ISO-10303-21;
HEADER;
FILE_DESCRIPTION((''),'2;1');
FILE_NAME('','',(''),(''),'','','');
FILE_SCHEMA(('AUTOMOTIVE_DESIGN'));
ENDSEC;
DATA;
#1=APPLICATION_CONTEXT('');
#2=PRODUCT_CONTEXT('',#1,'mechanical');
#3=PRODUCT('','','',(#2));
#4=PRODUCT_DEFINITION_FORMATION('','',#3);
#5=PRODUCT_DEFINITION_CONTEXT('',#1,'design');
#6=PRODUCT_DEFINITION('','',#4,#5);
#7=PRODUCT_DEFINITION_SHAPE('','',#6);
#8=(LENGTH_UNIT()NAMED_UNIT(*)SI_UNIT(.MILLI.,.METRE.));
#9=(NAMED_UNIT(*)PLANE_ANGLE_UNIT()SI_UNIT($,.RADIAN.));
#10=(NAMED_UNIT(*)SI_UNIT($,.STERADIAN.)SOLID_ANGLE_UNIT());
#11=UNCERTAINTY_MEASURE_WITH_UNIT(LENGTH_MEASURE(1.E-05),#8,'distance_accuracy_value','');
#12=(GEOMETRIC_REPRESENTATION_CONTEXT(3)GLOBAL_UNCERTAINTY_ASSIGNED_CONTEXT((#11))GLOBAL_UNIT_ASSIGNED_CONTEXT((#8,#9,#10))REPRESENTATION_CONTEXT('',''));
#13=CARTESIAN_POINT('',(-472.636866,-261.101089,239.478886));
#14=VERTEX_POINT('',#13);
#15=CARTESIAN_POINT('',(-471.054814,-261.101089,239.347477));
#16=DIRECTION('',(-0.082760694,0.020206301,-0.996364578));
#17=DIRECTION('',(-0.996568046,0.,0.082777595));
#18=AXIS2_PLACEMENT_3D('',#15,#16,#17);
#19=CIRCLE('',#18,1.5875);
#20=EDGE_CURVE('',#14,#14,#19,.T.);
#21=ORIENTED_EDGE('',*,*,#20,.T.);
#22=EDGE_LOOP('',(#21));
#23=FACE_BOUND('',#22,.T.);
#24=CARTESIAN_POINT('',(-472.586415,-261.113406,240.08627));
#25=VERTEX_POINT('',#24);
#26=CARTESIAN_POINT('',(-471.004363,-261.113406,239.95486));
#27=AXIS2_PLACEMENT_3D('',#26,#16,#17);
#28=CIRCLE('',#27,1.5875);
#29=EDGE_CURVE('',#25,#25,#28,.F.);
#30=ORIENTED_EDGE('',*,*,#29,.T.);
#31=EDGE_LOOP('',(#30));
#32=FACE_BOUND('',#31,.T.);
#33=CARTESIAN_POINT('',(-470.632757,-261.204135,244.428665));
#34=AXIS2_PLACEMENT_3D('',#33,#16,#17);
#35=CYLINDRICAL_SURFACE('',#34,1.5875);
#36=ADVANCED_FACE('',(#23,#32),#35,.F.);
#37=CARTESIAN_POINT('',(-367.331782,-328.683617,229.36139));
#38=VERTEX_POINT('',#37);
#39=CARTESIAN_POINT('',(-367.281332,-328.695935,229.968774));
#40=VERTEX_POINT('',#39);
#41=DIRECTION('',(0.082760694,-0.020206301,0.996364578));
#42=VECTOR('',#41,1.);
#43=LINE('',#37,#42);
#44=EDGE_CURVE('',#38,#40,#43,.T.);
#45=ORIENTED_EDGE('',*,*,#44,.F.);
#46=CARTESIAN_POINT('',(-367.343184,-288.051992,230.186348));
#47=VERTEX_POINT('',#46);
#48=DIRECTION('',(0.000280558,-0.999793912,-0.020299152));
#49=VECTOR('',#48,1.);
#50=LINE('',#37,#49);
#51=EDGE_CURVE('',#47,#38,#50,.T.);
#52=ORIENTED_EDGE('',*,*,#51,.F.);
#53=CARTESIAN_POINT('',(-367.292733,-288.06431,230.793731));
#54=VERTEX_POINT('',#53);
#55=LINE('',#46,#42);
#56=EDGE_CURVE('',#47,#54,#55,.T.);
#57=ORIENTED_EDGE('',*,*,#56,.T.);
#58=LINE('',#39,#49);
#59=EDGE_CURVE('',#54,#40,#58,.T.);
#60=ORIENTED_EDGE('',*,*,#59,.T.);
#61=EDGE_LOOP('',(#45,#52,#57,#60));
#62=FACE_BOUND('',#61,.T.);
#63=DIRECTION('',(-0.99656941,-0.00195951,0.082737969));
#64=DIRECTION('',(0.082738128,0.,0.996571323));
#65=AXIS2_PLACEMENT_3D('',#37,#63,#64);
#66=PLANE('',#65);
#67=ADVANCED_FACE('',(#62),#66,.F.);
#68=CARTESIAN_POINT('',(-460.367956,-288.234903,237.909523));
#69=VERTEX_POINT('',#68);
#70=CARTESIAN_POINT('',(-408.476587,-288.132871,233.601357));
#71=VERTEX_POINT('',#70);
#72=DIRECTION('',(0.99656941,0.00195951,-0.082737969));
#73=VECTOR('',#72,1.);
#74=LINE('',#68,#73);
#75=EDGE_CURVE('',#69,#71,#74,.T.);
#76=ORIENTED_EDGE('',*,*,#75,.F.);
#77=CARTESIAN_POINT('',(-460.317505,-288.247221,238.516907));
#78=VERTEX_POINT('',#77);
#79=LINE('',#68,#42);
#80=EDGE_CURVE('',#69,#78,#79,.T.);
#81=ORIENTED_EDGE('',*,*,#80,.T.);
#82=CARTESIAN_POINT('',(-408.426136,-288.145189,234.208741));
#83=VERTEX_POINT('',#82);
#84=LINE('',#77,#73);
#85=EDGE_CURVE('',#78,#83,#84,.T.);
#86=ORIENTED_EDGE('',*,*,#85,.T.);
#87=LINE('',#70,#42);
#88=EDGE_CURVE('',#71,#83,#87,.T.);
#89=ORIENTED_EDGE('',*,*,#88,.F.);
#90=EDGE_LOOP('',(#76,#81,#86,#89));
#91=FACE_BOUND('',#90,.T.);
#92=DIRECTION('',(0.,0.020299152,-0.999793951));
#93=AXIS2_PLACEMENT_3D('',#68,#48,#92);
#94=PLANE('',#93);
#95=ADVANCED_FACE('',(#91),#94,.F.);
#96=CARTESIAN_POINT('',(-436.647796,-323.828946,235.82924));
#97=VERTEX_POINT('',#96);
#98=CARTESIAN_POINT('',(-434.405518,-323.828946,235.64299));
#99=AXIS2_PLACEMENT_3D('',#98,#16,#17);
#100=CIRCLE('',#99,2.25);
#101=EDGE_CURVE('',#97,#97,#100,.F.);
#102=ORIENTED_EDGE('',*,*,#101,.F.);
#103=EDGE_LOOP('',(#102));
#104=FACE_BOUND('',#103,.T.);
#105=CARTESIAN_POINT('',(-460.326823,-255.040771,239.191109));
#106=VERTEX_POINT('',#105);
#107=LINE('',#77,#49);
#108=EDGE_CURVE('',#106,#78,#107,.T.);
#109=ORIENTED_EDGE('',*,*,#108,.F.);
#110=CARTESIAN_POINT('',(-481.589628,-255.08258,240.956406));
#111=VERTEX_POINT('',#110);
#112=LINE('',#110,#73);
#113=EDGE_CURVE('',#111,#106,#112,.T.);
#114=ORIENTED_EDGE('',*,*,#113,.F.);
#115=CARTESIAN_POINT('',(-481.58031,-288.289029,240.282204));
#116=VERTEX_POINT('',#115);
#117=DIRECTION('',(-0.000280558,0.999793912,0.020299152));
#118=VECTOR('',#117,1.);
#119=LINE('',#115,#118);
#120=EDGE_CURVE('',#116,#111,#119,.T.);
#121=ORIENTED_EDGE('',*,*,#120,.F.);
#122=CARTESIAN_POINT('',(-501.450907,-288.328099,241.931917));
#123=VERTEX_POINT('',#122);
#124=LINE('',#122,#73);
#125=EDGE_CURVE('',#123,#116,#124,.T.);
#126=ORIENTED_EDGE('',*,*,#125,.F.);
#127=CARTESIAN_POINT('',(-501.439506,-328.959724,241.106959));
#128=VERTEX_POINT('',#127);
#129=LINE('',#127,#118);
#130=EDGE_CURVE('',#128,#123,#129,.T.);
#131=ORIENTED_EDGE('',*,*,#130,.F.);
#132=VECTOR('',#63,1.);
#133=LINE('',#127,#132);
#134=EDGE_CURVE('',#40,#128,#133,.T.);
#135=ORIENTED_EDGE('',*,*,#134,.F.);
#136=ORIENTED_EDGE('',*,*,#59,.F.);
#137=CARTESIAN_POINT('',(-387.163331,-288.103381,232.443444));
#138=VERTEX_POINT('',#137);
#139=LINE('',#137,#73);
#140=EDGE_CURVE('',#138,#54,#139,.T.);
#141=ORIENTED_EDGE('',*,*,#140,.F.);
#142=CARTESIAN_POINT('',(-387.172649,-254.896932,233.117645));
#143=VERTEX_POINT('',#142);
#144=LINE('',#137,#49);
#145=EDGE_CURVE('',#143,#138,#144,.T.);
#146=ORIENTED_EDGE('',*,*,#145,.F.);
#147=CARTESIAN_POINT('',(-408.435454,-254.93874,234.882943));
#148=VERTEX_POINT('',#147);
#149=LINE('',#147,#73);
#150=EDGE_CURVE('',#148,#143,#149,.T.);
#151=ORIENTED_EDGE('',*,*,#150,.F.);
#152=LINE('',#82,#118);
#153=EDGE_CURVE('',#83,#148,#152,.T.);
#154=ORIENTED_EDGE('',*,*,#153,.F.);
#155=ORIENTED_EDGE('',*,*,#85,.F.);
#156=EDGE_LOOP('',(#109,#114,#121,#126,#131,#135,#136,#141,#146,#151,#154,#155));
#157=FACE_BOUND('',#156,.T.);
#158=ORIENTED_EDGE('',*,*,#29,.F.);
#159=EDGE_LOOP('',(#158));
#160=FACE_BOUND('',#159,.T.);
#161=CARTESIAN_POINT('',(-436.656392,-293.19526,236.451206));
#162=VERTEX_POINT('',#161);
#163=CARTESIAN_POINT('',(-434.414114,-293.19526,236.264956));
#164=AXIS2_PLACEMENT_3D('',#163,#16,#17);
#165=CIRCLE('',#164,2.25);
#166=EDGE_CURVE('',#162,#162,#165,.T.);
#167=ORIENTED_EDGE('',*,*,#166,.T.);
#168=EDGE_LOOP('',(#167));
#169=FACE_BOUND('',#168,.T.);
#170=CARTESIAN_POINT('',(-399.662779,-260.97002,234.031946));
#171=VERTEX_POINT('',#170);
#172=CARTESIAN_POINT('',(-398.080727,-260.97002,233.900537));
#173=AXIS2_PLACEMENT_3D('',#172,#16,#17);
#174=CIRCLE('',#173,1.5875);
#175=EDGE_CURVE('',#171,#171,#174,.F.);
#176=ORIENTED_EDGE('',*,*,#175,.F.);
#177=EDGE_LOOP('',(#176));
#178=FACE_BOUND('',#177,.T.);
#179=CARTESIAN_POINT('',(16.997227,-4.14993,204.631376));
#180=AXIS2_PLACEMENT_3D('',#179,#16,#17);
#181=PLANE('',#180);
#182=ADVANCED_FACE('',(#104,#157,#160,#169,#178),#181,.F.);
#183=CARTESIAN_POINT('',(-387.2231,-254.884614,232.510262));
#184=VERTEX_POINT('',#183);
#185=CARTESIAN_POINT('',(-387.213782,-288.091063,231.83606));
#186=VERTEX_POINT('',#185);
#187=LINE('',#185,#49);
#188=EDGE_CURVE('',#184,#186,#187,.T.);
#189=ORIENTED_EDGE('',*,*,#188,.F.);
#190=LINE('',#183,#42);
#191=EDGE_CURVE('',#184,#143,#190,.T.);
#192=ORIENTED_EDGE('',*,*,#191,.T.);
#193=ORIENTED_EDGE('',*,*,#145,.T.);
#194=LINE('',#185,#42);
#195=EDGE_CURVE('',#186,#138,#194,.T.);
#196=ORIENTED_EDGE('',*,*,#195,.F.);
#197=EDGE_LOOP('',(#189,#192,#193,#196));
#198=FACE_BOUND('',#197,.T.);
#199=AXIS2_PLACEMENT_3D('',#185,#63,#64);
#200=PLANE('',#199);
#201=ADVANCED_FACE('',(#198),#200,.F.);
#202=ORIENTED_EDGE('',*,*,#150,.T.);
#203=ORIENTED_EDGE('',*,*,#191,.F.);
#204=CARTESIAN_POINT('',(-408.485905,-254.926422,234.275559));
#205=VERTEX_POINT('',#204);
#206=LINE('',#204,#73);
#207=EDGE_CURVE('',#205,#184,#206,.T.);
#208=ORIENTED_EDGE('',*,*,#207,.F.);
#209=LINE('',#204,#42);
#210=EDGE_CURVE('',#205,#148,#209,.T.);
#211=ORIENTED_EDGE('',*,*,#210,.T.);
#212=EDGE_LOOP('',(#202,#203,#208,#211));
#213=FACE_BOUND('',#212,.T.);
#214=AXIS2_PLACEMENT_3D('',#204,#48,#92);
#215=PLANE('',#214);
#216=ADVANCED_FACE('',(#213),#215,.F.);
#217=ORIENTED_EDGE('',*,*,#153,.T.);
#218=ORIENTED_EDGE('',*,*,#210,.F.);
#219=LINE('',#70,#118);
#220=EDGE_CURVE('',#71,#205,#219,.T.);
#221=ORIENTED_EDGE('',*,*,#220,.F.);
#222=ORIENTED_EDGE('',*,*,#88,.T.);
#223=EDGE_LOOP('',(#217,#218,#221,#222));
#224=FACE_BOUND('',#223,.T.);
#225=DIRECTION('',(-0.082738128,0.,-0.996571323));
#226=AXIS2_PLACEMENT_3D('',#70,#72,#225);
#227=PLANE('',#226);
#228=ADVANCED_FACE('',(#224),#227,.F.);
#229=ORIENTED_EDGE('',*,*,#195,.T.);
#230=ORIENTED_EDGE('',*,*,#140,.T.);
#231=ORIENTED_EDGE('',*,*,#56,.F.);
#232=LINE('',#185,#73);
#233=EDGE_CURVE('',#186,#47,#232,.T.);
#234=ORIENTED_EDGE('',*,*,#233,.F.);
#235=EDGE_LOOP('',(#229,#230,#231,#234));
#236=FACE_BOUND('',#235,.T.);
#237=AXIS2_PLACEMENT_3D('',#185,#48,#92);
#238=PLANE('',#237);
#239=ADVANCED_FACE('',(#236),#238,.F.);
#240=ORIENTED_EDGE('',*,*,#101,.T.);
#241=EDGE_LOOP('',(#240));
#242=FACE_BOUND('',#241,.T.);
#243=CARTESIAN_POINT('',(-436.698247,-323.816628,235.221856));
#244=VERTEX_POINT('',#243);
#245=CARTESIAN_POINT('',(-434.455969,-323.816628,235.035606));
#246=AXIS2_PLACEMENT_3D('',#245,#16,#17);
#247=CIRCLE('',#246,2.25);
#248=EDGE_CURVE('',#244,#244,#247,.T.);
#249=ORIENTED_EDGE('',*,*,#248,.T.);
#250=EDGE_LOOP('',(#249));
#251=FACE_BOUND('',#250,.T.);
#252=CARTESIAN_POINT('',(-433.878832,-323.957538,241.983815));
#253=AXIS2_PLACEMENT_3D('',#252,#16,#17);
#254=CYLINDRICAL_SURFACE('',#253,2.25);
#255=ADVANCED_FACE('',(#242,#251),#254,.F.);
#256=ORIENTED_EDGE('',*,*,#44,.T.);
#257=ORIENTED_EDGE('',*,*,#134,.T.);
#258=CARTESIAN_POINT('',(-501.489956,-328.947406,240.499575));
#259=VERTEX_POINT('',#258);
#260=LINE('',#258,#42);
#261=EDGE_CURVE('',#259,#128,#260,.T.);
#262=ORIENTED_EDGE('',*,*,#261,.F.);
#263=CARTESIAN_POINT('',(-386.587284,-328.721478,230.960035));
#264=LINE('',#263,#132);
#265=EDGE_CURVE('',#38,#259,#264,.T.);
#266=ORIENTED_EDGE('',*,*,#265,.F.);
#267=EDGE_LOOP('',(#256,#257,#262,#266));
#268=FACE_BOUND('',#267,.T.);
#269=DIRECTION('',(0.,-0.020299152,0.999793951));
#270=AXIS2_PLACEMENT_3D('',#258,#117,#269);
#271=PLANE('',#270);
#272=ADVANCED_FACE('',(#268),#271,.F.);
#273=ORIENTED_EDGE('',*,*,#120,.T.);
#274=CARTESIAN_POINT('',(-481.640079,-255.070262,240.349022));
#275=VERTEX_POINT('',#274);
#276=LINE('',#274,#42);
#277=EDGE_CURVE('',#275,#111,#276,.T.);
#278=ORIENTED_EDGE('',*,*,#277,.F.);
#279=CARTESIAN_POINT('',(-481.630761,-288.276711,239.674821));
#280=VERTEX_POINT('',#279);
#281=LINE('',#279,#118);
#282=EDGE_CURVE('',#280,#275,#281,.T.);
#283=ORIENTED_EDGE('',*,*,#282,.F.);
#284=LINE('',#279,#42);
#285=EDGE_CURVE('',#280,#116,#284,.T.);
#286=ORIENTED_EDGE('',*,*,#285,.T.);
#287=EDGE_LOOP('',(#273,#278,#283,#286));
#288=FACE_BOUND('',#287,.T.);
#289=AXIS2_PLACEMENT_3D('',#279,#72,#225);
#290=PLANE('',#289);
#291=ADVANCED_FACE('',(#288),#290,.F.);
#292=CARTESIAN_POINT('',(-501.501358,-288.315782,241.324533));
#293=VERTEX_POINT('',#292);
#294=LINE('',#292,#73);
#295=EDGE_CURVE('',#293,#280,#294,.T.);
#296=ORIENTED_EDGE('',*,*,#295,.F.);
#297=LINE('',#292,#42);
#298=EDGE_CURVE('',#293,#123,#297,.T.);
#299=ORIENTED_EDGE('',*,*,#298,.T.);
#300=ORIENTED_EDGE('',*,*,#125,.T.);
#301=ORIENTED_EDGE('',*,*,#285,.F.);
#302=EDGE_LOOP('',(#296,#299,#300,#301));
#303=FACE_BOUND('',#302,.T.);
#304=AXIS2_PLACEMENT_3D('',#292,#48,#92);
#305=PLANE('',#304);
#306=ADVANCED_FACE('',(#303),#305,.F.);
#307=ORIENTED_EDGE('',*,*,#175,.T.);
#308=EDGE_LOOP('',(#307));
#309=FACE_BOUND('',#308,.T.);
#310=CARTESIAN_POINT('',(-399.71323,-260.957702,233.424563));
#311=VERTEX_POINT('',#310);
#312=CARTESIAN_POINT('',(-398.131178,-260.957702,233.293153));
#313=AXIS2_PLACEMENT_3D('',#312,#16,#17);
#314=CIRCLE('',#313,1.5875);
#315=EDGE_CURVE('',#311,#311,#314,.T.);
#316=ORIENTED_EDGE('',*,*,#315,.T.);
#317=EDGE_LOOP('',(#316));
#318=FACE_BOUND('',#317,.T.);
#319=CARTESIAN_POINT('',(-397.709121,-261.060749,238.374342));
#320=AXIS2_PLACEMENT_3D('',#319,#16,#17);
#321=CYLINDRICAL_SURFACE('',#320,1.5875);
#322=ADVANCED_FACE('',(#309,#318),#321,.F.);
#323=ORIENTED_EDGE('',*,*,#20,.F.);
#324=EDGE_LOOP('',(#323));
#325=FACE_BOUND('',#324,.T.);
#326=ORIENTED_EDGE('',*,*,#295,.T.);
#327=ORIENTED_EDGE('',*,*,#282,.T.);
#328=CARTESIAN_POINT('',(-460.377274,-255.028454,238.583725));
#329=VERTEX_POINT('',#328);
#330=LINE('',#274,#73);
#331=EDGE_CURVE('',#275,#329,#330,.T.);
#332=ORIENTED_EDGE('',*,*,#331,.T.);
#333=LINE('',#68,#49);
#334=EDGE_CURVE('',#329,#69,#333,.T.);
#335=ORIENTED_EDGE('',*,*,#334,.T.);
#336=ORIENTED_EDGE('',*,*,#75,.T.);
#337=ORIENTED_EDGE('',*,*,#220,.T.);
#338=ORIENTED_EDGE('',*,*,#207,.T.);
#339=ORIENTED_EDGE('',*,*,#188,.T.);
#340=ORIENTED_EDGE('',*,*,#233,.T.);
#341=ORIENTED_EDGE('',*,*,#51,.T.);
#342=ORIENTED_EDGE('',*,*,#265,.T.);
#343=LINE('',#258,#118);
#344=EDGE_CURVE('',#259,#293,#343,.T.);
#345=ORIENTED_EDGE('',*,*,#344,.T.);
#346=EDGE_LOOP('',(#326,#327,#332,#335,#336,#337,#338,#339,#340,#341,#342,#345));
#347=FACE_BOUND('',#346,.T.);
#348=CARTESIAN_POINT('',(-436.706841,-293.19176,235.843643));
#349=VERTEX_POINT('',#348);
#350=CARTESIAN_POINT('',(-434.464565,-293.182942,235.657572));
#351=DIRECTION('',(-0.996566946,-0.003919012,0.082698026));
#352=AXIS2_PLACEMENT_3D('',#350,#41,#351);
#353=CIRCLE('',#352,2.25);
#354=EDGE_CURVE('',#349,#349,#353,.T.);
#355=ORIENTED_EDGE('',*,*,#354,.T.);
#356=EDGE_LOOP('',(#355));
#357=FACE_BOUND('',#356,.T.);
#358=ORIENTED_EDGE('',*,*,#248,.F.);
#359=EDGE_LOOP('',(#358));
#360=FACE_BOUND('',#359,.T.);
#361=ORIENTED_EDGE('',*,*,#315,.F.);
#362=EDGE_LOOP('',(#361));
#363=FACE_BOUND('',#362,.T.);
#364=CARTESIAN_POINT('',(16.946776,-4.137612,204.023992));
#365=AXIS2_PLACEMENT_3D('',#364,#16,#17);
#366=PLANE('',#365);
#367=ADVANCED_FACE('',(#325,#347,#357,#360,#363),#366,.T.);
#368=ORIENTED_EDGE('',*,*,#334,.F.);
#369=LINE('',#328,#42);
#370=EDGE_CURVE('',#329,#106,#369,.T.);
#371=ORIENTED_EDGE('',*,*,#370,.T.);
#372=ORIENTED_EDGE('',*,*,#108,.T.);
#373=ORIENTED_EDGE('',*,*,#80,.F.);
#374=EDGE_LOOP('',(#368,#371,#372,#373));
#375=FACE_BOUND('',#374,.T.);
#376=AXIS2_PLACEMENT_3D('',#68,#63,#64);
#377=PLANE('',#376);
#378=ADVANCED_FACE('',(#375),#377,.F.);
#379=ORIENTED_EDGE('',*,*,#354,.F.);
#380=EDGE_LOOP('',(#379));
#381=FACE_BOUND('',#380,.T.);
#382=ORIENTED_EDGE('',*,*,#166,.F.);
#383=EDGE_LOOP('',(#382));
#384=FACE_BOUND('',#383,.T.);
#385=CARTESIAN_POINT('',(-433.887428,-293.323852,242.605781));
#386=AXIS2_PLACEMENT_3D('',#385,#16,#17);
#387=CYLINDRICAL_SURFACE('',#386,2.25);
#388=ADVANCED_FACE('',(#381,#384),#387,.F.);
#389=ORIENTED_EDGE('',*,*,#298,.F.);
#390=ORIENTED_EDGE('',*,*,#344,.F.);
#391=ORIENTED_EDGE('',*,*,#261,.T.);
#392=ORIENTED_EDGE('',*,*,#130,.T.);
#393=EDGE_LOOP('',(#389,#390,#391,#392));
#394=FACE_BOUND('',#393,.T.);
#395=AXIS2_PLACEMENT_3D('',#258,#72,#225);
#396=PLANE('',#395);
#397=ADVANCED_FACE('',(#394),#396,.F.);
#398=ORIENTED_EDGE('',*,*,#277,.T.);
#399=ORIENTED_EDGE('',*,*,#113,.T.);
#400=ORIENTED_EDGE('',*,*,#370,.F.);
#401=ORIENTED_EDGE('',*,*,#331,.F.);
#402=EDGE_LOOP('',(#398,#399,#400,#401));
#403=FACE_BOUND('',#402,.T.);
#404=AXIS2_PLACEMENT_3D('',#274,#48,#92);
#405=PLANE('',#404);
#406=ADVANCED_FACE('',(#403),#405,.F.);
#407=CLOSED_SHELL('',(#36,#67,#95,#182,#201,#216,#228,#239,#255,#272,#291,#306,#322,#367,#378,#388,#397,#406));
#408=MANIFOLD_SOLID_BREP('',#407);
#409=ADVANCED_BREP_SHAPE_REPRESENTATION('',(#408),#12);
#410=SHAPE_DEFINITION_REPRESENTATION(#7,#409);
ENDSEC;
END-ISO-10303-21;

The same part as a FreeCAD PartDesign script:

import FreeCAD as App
import Part
import Sketcher
Q = App.Units.Quantity


def add_polygon(sketch, points):
    """Adds a closed chain of lines whose ends are joined by coincident constraints."""
    first, n = sketch.GeometryCount, len(points)
    for a, b in zip(points, points[1:] + points[:1]):
        sketch.addGeometry(Part.LineSegment(App.Vector(*a, 0), App.Vector(*b, 0)), False)
    for i in range(n):
        sketch.addConstraint(Sketcher.Constraint("Coincident", first + i, 2, first + (i + 1) % n, 1))

doc = App.newDocument("Part")
body = doc.addObject("PartDesign::Body", "Body")

sketch1 = body.newObject("Sketcher::SketchObject", "Sketch")
sketch1.Placement = App.Placement(App.Vector(16.997227, -4.14993, 204.631376), App.Rotation(App.Vector(0.99656941, 0.00195951, -0.082737969), App.Vector(0.000280558, -0.999793911, -0.020299152), App.Vector(-0.082760694, 0.020206301, -0.996364578), "ZXY"))
add_polygon(sketch1, [(-406, 283), (-386, 283), (-386, 324), (-520, 324), (-520, 283), (-500, 283), (-500, 250), (-479, 250), (-479, 283), (-427, 283), (-427, 250), (-406, 250)])
sketch1.addConstraint(Sketcher.Constraint("Horizontal", 0))
sketch1.addConstraint(Sketcher.Constraint("Vertical", 1))
sketch1.addConstraint(Sketcher.Constraint("Horizontal", 2))
sketch1.addConstraint(Sketcher.Constraint("Vertical", 3))
sketch1.addConstraint(Sketcher.Constraint("Horizontal", 4))
sketch1.addConstraint(Sketcher.Constraint("Vertical", 5))
sketch1.addConstraint(Sketcher.Constraint("Horizontal", 6))
sketch1.addConstraint(Sketcher.Constraint("Vertical", 7))
sketch1.addConstraint(Sketcher.Constraint("Horizontal", 8))
sketch1.addConstraint(Sketcher.Constraint("Vertical", 9))
sketch1.addConstraint(Sketcher.Constraint("Horizontal", 10))
sketch1.addConstraint(Sketcher.Constraint("Vertical", 11))
sketch1.addConstraint(Sketcher.Constraint("Horizontal", 0, 2, 3, 2))
sketch1.addConstraint(Sketcher.Constraint("Horizontal", 4, 2, 7, 2))
sketch1.addConstraint(Sketcher.Constraint("Horizontal", 6, 2, 9, 2))
sketch1.addConstraint(Sketcher.Constraint("Equal", 0, 4))
sketch1.addConstraint(Sketcher.Constraint("Equal", 6, 10))
sketch1.addConstraint(Sketcher.Constraint("DistanceX", 2, 2, 2, 1, Q("5.3 in")))
sketch1.addConstraint(Sketcher.Constraint("DistanceY", 1, 1, 1, 2, Q("1.6 in")))
sketch1.addConstraint(Sketcher.Constraint("DistanceX", 6, 1, 6, 2, Q("0.84 in")))
sketch1.addConstraint(Sketcher.Constraint("DistanceX", 8, 1, 8, 2, Q("2.05 in")))
sketch1.addConstraint(Sketcher.Constraint("DistanceY", 5, 2, 5, 1, Q("33.213294 mm")))
sketch1.addConstraint(Sketcher.Constraint("DistanceY", -1, 1, 0, 2, Q("283.21698 mm")))
sketch1.addConstraint(Sketcher.Constraint("DistanceX", 0, 2, -1, 1, Q("385.692572 mm")))
pad1 = body.newObject("PartDesign::Pad", "Pad")
pad1.Profile = sketch1
pad1.Length = Q("0.024 in")

sketch2 = body.newObject("Sketcher::SketchObject", "Sketch001")
sketch2.Placement = App.Placement(App.Vector(16.946776, -4.137612, 204.023992), App.Rotation(App.Vector(-0.996569449, -0.001678044, 0.082743681), App.Vector(0, 0.999794423, 0.020275858), App.Vector(-0.082760694, 0.020206301, -0.996364578), "ZXY"))
sketch2.addGeometry(Part.Circle(App.Vector(453, -319, 0), App.Vector(0, 0, 1), 2.2), False)
sketch2.addConstraint(Sketcher.Constraint("Diameter", 0, Q("4.5 mm")))
sketch2.addConstraint(Sketcher.Constraint("DistanceY", 0, 3, -1, 1, Q("318.98451 mm")))
sketch2.addConstraint(Sketcher.Constraint("DistanceX", -1, 1, 0, 3, Q("452.956635 mm")))
pocket1 = body.newObject("PartDesign::Pocket", "Pocket")
pocket1.Profile = sketch2
pocket1.Length = Q("0.024 in")
doc.recompute()

datumplane = body.newObject("PartDesign::Plane", "DatumPlane")
datumplane.Placement = App.Placement(App.Vector(0.08516, -303.474424, -6.161543), App.Rotation(App.Vector(0, -0.020299153, 0.999793951), App.Vector(-0.999999961, -0.0002805, -0.000005695), App.Vector(0.000280558, -0.999793912, -0.020299152), "ZXY"))
mirrored = body.newObject("PartDesign::Mirrored", "Mirrored")
mirrored.Originals = [pocket1]
mirrored.MirrorPlane = (datumplane, [""])
body.Tip = mirrored

sketch3 = body.newObject("Sketcher::SketchObject", "Sketch002")
sketch3.Placement = App.Placement(App.Vector(16.946776, -4.137612, 204.023992), App.Rotation(App.Vector(-0.996569449, -0.001678044, 0.082743681), App.Vector(0, 0.999794423, 0.020275858), App.Vector(-0.082760694, 0.020206301, -0.996364578), "ZXY"))
sketch3.addGeometry(Part.Circle(App.Vector(416.5, -256.2, 0), App.Vector(0, 0, 1), 1.6), False)
sketch3.addConstraint(Sketcher.Constraint("Diameter", 0, Q("0.125 in")))
sketch3.addConstraint(Sketcher.Constraint("DistanceX", -1, 1, 0, 3, Q("416.506801 mm")))
sketch3.addConstraint(Sketcher.Constraint("DistanceY", 0, 3, -1, 1, Q("256.173836 mm")))
pocket2 = body.newObject("PartDesign::Pocket", "Pocket001")
pocket2.Profile = sketch3
pocket2.Length = Q("0.024 in")

sketch4 = body.newObject("Sketcher::SketchObject", "Sketch003")
sketch4.Placement = App.Placement(App.Vector(16.946776, -4.137612, 204.023992), App.Rotation(App.Vector(-0.996569449, -0.001678044, 0.082743681), App.Vector(0, 0.999794423, 0.020275858), App.Vector(-0.082760694, 0.020206301, -0.996364578), "ZXY"))
sketch4.addGeometry(Part.Circle(App.Vector(489.7, -256.2, 0), App.Vector(0, 0, 1), 1.6), False)
sketch4.addConstraint(Sketcher.Constraint("Diameter", 0, Q("0.125 in")))
sketch4.addConstraint(Sketcher.Constraint("DistanceX", -1, 1, 0, 3, Q("489.681466 mm")))
sketch4.addConstraint(Sketcher.Constraint("DistanceY", 0, 3, -1, 1, Q("256.194437 mm")))
pocket3 = body.newObject("PartDesign::Pocket", "Pocket002")
pocket3.Profile = sketch4
pocket3.Length = Q("0.024 in")

doc.recompute()
